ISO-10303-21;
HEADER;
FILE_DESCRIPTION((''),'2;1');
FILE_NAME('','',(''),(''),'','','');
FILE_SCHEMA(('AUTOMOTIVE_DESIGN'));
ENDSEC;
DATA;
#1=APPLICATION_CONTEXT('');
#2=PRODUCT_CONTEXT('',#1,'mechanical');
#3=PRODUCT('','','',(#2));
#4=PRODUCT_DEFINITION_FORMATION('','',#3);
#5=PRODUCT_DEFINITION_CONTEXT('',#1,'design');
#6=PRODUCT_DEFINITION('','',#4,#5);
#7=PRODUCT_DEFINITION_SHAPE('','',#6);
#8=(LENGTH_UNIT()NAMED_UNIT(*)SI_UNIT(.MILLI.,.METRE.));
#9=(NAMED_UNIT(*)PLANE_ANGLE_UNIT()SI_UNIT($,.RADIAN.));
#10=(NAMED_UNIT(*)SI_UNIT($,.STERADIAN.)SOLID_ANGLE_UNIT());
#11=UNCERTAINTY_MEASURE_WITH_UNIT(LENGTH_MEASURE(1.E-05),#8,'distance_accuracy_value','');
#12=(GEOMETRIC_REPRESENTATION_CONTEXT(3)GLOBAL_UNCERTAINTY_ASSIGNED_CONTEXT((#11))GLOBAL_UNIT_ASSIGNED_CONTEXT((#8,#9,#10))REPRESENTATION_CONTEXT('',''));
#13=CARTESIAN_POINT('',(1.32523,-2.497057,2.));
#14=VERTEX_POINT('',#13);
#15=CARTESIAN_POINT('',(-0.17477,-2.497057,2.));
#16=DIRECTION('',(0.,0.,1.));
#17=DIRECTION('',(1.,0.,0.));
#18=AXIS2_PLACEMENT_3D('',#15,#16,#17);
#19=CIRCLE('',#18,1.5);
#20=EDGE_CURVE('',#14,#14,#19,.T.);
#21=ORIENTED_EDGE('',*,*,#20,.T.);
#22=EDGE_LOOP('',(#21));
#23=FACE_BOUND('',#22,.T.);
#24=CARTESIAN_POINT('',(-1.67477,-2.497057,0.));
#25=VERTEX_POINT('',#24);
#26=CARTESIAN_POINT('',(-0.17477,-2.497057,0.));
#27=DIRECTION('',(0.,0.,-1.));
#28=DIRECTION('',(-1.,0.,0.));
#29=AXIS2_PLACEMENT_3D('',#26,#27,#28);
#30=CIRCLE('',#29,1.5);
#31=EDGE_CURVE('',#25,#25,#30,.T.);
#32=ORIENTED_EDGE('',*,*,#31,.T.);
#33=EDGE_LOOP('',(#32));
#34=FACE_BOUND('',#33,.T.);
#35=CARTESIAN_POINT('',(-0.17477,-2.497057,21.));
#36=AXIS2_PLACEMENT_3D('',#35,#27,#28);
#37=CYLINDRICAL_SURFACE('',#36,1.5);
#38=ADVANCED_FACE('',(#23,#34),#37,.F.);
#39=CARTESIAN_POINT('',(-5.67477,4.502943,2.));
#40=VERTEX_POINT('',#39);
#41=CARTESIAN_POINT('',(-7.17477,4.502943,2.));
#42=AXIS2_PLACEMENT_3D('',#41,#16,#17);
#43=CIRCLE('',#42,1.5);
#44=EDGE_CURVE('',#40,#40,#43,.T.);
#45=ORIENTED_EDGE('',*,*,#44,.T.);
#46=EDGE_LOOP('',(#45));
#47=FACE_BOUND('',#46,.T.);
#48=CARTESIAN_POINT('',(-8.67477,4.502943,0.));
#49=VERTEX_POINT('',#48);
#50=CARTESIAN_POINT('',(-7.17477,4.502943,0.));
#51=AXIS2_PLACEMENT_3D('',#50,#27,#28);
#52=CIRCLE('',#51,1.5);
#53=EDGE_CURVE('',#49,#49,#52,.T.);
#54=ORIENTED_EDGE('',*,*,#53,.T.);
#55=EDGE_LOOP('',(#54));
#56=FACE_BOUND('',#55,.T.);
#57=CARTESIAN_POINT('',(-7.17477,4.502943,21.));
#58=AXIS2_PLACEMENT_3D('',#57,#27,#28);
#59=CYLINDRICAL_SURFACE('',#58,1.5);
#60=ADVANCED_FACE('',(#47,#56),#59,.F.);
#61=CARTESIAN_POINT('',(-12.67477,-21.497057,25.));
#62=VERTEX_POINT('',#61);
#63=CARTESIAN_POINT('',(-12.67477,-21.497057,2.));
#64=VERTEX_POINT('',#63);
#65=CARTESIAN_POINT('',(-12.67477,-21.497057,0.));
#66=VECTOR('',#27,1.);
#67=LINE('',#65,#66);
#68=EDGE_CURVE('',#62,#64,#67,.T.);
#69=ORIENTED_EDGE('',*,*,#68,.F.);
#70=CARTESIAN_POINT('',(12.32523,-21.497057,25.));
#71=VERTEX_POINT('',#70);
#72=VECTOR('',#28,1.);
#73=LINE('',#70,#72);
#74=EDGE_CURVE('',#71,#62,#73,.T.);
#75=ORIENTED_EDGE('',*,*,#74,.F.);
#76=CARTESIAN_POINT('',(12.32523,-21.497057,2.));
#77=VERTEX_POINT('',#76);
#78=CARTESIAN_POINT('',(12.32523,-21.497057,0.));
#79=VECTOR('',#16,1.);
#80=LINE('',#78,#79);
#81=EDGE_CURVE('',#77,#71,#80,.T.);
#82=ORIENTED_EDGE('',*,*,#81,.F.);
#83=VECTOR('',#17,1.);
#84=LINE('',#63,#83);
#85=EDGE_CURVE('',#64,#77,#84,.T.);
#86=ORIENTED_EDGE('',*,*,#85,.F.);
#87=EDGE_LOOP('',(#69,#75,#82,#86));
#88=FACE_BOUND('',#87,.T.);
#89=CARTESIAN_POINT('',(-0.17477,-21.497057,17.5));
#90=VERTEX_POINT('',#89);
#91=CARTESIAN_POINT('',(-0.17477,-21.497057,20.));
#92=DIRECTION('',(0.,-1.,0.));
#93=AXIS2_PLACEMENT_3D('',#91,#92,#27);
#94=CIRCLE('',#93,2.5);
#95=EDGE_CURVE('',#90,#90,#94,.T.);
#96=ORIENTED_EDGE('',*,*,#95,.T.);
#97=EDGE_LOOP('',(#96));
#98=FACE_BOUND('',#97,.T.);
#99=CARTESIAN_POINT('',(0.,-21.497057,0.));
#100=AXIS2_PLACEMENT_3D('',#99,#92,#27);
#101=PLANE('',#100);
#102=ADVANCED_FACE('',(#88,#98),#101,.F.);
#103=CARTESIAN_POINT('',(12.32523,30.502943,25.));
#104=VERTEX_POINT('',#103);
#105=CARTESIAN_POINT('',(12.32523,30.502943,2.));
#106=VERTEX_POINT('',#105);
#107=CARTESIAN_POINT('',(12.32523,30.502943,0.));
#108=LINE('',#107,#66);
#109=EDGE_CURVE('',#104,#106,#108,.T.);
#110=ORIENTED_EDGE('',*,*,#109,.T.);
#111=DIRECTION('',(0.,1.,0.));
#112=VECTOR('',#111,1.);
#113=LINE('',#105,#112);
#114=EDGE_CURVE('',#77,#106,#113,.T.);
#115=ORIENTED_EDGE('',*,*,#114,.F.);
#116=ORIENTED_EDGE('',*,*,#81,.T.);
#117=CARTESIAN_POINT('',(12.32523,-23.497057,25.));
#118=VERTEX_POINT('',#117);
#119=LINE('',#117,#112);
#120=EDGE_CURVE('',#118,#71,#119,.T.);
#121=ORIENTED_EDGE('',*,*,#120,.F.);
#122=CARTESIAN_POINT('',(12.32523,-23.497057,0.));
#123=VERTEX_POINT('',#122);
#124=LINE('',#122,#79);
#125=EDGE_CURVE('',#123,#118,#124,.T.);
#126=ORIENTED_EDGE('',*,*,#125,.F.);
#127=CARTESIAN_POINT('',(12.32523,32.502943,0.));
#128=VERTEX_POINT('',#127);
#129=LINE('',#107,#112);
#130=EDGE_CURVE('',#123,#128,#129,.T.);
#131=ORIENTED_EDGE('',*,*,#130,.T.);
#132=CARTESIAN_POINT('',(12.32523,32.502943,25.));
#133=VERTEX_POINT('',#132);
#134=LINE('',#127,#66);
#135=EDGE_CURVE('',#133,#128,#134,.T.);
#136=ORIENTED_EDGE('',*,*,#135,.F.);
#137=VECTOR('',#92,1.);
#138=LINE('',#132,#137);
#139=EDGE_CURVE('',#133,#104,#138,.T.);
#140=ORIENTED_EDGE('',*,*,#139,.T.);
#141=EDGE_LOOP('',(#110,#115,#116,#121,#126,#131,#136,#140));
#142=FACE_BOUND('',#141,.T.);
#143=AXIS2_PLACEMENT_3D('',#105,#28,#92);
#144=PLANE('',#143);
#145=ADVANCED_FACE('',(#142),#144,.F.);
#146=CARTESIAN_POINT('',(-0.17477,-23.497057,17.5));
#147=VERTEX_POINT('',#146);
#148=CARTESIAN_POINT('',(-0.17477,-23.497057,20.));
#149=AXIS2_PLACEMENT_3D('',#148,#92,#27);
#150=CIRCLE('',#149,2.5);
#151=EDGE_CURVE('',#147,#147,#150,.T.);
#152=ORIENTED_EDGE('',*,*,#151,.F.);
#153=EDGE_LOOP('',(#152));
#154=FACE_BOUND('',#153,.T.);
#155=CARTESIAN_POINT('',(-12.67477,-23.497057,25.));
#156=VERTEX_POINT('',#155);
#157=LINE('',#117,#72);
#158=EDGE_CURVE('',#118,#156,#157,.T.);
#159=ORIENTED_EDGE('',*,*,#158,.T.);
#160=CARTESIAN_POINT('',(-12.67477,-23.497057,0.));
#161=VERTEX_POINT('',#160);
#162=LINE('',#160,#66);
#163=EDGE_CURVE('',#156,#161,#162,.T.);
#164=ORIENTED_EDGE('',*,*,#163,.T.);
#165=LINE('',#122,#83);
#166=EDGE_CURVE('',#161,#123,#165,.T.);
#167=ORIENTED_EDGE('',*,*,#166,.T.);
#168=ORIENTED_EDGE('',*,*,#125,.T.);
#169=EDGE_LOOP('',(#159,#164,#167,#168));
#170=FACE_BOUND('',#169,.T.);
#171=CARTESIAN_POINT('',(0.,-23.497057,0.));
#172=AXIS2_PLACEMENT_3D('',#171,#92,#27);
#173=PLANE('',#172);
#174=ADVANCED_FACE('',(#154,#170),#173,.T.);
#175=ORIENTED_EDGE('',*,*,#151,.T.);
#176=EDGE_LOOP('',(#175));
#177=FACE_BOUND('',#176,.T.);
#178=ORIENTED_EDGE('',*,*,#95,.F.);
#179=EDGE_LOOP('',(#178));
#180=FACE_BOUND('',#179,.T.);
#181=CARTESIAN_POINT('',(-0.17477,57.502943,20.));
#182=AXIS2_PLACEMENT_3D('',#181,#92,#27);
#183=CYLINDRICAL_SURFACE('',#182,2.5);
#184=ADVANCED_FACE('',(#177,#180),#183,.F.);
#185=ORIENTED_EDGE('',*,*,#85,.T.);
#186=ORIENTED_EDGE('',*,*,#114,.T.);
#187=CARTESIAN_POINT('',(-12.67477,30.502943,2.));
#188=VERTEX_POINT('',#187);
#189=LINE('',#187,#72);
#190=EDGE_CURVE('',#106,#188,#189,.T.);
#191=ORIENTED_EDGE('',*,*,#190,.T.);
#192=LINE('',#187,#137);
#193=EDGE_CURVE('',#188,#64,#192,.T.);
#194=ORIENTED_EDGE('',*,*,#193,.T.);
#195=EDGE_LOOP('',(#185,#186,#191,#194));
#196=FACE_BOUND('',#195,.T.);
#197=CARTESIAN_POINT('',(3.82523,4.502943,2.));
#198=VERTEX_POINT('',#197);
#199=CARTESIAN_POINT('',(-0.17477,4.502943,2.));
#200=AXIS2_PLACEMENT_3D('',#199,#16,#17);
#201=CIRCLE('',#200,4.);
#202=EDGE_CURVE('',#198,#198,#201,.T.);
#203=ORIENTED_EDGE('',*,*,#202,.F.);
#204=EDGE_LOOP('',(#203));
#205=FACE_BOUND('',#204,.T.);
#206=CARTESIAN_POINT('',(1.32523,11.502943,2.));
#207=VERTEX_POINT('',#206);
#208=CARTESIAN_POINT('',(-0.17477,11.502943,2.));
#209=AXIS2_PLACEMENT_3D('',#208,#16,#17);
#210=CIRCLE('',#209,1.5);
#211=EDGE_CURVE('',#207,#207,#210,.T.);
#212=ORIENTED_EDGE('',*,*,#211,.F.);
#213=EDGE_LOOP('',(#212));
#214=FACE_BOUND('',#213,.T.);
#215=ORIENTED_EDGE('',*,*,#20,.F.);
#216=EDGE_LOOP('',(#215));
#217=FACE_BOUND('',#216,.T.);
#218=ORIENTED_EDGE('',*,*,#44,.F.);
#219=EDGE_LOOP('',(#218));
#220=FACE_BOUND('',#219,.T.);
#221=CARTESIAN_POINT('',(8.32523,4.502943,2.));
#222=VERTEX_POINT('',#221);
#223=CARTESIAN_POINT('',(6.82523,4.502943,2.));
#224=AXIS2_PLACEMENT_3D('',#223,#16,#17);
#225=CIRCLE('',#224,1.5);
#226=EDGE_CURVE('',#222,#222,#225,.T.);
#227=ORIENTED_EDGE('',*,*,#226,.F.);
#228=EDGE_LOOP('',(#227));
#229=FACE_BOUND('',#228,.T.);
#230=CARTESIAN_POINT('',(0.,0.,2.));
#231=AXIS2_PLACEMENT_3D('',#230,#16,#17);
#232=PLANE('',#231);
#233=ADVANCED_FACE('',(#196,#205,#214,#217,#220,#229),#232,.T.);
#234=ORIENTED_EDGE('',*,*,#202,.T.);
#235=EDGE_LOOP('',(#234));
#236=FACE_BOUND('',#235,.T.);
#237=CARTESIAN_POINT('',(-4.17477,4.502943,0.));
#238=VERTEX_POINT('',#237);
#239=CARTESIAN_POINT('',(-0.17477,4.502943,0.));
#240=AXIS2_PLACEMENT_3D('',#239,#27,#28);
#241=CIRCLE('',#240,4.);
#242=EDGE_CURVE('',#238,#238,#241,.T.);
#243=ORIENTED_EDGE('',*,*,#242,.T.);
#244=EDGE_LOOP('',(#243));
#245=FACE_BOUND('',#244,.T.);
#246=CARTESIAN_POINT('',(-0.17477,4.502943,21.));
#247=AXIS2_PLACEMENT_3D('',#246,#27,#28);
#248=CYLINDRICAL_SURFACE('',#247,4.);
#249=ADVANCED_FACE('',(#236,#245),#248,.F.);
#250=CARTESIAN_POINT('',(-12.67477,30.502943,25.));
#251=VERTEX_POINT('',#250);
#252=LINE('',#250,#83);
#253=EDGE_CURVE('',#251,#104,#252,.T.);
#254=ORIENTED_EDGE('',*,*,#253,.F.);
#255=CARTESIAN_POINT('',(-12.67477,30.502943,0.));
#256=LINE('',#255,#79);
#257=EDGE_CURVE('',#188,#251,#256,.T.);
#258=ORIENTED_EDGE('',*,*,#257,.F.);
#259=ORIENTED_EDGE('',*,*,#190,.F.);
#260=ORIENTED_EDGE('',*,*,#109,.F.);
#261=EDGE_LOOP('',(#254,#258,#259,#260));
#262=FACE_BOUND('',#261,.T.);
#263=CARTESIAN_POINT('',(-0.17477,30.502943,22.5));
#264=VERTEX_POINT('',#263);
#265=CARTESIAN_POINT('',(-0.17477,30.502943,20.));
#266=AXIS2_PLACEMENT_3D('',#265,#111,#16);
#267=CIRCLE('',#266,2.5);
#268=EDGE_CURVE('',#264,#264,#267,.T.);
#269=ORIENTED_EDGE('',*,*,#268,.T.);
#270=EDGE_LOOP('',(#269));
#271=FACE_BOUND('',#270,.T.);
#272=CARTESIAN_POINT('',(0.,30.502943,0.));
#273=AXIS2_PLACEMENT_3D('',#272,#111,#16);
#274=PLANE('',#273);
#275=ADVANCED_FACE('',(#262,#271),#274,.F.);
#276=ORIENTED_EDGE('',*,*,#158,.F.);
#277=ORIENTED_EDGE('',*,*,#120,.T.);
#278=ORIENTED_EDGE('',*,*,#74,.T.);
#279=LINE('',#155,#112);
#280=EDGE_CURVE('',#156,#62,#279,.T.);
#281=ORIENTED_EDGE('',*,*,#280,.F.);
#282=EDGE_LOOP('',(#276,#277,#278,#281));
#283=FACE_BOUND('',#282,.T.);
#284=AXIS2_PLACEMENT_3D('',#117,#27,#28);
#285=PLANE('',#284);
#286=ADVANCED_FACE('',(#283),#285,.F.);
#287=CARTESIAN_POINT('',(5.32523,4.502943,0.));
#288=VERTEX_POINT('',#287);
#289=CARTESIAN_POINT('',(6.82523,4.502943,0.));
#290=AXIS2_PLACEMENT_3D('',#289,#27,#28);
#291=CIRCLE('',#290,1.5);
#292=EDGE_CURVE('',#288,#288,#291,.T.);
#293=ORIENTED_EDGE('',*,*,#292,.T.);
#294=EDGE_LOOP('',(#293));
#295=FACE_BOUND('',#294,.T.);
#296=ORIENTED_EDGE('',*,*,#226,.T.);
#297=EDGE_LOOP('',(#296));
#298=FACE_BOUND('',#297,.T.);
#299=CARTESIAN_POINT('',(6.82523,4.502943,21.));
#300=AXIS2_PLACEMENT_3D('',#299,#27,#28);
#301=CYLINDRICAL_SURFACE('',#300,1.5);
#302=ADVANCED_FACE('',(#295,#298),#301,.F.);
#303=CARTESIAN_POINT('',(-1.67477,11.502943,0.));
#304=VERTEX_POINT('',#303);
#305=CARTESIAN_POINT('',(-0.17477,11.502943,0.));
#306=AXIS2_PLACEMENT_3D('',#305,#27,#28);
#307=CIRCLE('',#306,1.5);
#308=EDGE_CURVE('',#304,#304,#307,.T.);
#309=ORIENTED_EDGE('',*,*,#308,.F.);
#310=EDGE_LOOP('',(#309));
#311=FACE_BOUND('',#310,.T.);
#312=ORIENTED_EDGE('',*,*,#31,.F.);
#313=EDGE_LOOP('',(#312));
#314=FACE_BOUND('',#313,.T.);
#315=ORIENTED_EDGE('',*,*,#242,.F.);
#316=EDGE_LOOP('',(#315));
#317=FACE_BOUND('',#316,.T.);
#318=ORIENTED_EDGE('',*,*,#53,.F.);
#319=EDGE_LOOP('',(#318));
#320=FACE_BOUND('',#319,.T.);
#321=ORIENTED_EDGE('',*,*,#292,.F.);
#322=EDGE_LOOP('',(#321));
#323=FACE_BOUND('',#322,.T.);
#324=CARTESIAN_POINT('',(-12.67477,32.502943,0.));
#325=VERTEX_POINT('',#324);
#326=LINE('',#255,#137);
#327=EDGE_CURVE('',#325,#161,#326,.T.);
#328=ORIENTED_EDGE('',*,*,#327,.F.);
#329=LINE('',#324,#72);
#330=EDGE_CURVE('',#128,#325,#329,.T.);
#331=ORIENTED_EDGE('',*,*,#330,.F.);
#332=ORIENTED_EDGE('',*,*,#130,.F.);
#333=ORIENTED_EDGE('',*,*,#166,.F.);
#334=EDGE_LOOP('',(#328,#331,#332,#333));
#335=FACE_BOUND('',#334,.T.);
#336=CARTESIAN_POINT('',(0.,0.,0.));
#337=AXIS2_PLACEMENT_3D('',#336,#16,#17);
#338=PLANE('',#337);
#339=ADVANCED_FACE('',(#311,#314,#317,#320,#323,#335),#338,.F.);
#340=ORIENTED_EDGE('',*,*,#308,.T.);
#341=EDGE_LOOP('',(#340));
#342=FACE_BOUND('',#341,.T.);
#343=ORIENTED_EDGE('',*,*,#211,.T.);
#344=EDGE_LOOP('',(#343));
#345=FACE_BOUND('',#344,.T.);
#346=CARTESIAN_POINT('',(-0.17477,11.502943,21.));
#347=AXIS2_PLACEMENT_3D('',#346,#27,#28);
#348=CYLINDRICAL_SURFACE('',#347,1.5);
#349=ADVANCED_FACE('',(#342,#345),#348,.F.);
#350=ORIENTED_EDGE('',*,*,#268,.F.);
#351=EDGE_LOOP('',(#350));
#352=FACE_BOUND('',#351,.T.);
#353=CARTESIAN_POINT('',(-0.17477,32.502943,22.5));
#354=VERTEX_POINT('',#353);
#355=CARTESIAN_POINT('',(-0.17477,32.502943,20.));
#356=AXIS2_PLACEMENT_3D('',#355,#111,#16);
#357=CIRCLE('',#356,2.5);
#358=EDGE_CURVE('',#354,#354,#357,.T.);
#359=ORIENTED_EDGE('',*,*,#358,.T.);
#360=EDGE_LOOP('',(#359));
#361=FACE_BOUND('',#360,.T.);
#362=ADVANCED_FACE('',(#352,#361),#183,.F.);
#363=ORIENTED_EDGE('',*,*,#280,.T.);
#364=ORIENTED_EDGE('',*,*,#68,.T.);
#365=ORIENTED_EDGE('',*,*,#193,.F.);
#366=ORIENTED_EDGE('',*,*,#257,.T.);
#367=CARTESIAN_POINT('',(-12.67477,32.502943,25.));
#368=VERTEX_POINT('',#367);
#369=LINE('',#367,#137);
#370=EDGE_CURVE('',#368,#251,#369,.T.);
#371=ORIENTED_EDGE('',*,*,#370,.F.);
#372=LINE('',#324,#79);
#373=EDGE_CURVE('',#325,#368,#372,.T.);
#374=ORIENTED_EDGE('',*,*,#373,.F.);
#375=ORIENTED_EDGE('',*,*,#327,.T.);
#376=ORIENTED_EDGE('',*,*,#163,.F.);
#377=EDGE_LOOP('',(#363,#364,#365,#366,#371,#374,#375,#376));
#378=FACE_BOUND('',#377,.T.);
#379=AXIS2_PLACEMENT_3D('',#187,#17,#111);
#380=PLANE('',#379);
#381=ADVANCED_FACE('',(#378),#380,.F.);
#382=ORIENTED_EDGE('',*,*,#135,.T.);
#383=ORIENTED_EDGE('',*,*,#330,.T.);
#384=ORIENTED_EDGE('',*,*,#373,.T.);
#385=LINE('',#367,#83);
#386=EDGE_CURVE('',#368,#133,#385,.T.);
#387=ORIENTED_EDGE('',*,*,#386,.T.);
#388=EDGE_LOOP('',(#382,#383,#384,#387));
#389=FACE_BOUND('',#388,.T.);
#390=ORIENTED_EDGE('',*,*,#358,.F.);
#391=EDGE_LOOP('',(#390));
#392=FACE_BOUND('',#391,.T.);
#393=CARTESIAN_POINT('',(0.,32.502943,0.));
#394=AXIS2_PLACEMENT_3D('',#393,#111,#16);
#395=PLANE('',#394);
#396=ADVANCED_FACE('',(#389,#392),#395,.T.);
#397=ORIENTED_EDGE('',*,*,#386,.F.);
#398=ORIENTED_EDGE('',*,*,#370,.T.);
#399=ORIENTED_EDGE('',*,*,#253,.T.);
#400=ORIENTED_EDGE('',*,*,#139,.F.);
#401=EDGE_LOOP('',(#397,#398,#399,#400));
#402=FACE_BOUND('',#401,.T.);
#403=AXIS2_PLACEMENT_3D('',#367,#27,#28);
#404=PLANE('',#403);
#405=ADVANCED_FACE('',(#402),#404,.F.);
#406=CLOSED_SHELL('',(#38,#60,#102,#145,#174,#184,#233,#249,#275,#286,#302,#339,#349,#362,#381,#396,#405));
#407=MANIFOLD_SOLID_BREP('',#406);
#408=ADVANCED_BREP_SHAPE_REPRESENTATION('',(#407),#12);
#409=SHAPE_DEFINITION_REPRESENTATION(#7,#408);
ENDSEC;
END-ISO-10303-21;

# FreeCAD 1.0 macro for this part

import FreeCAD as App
import Part
import Sketcher
Q = App.Units.Quantity


def add_polygon(sketch, points):
    """Adds a closed chain of lines whose ends are joined by coincident constraints."""
    first, n = sketch.GeometryCount, len(points)
    for a, b in zip(points, points[1:] + points[:1]):
        sketch.addGeometry(Part.LineSegment(App.Vector(*a, 0), App.Vector(*b, 0)), False)
    for i in range(n):
        sketch.addConstraint(Sketcher.Constraint("Coincident", first + i, 2, first + (i + 1) % n, 1))

doc = App.newDocument("Part")
body = doc.addObject("PartDesign::Body", "Body")

# Sketch on XY plane
sketch1 = body.newObject("Sketcher::SketchObject", "Sketch")
sketch1.AttachmentSupport = (doc.getObject("XY_Plane"), [""])
sketch1.MapMode = "FlatFace"
add_polygon(sketch1, [(-13, 31), (-13, -21), (12, -21), (12, 31)])  # lines 0-3
sketch1.addConstraint(Sketcher.Constraint("Vertical", 0))
sketch1.addConstraint(Sketcher.Constraint("Horizontal", 1))
sketch1.addConstraint(Sketcher.Constraint("Vertical", 2))
sketch1.addConstraint(Sketcher.Constraint("Horizontal", 3))
sketch1.addConstraint(Sketcher.Constraint("DistanceX", 1, 1, 1, 2, Q("25 mm")))
sketch1.addConstraint(Sketcher.Constraint("DistanceY", 0, 2, 0, 1, Q("52 mm")))
sketch1.addConstraint(Sketcher.Constraint("DistanceX", 0, 2, -1, 1, Q("12.67477 mm")))
sketch1.addConstraint(Sketcher.Constraint("DistanceY", 0, 2, -1, 1, Q("21.497057 mm")))
pad1 = body.newObject("PartDesign::Pad", "Pad")
pad1.Profile = sketch1
pad1.Length = 2

# Sketch on XZ plane
sketch2 = body.newObject("Sketcher::SketchObject", "Sketch001")
sketch2.AttachmentSupport = (doc.getObject("XZ_Plane"), [""])
sketch2.MapMode = "FlatFace"
sketch2.AttachmentOffset = App.Placement(App.Vector(0, 0, -30.502943), App.Rotation())
add_polygon(sketch2, [(-13, 0), (-13, 25), (12, 25), (12, 0)])  # lines 0-3
sketch2.addConstraint(Sketcher.Constraint("Vertical", 0))
sketch2.addConstraint(Sketcher.Constraint("Horizontal", 1))
sketch2.addConstraint(Sketcher.Constraint("Vertical", 2))
sketch2.addConstraint(Sketcher.Constraint("Horizontal", 3))
sketch2.addConstraint(Sketcher.Constraint("PointOnObject", 2, 2, -1))
sketch2.addConstraint(Sketcher.Constraint("Equal", 3, 0))
sketch2.addConstraint(Sketcher.Constraint("DistanceX", 1, 1, 1, 2, Q("25 mm")))
sketch2.addConstraint(Sketcher.Constraint("DistanceX", 0, 2, -1, 1, Q("12.67477 mm")))
pad2 = body.newObject("PartDesign::Pad", "Pad001")
pad2.Profile = sketch2
pad2.Length = 2
pad2.Reversed = True

# Sketch on XZ plane
sketch3 = body.newObject("Sketcher::SketchObject", "Sketch002")
sketch3.AttachmentSupport = (doc.getObject("XZ_Plane"), [""])
sketch3.MapMode = "FlatFace"
sketch3.AttachmentOffset = App.Placement(App.Vector(0, 0, 21.497057), App.Rotation())
add_polygon(sketch3, [(12, 0), (12, 25), (-13, 25), (-13, 0)])  # lines 0-3
sketch3.addConstraint(Sketcher.Constraint("Vertical", 0))
sketch3.addConstraint(Sketcher.Constraint("Horizontal", 1))
sketch3.addConstraint(Sketcher.Constraint("Vertical", 2))
sketch3.addConstraint(Sketcher.Constraint("Horizontal", 3))
sketch3.addConstraint(Sketcher.Constraint("PointOnObject", 2, 2, -1))
sketch3.addConstraint(Sketcher.Constraint("Equal", 3, 0))
sketch3.addConstraint(Sketcher.Constraint("DistanceX", 1, 2, 1, 1, Q("25 mm")))
sketch3.addConstraint(Sketcher.Constraint("DistanceX", -1, 1, 0, 2, Q("12.32523 mm")))
pad3 = body.newObject("PartDesign::Pad", "Pad002")
pad3.Profile = sketch3
pad3.Length = 2

# Sketch on XY plane
sketch4 = body.newObject("Sketcher::SketchObject", "Sketch003")
sketch4.AttachmentSupport = (doc.getObject("XY_Plane"), [""])
sketch4.MapMode = "FlatFace"
sketch4.addGeometry(Part.Circle(App.Vector(-0.2, 4.5, 0), App.Vector(0, 0, 1), 4), False)
sketch4.addConstraint(Sketcher.Constraint("Diameter", 0, Q("8 mm")))
sketch4.addConstraint(Sketcher.Constraint("DistanceX", 0, 3, -1, 1, Q("0.17477 mm")))
sketch4.addConstraint(Sketcher.Constraint("DistanceY", -1, 1, 0, 3, Q("4.502943 mm")))
pocket1 = body.newObject("PartDesign::Pocket", "Pocket")
pocket1.Profile = sketch4
pocket1.Length = 21
pocket1.Reversed = True

# Sketch on XY plane
sketch5 = body.newObject("Sketcher::SketchObject", "Sketch004")
sketch5.AttachmentSupport = (doc.getObject("XY_Plane"), [""])
sketch5.MapMode = "FlatFace"
sketch5.addGeometry(Part.Circle(App.Vector(-7.2, 4.5, 0), App.Vector(0, 0, 1), 1.5), False)
sketch5.addGeometry(Part.Circle(App.Vector(-0.2, -2.5, 0), App.Vector(0, 0, 1), 1.5), False)
sketch5.addGeometry(Part.Circle(App.Vector(6.8, 4.5, 0), App.Vector(0, 0, 1), 1.5), False)
sketch5.addGeometry(Part.Circle(App.Vector(-0.2, 11.5, 0), App.Vector(0, 0, 1), 1.5), False)
sketch5.addConstraint(Sketcher.Constraint("Equal", 0, 1))
sketch5.addConstraint(Sketcher.Constraint("Equal", 1, 2))
sketch5.addConstraint(Sketcher.Constraint("Equal", 2, 3))
sketch5.addConstraint(Sketcher.Constraint("Horizontal", 0, 3, 2, 3))
sketch5.addConstraint(Sketcher.Constraint("Vertical", 1, 3, 3, 3))
sketch5.addConstraint(Sketcher.Constraint("Diameter", 0, Q("3 mm")))
sketch5.addConstraint(Sketcher.Constraint("DistanceX", 0, 3, 1, 3, Q("7 mm")))
sketch5.addConstraint(Sketcher.Constraint("DistanceY", 1, 3, 0, 3, Q("7 mm")))
sketch5.addConstraint(Sketcher.Constraint("DistanceX", 1, 3, 2, 3, Q("7 mm")))
sketch5.addConstraint(Sketcher.Constraint("DistanceY", 0, 3, 3, 3, Q("7 mm")))
sketch5.addConstraint(Sketcher.Constraint("DistanceX", 0, 3, -1, 1, Q("7.17477 mm")))
sketch5.addConstraint(Sketcher.Constraint("DistanceY", -1, 1, 0, 3, Q("4.502943 mm")))
pocket2 = body.newObject("PartDesign::Pocket", "Pocket001")
pocket2.Profile = sketch5
pocket2.Length = 21
pocket2.Reversed = True

# Sketch on XZ plane
sketch6 = body.newObject("Sketcher::SketchObject", "Sketch005")
sketch6.AttachmentSupport = (doc.getObject("XZ_Plane"), [""])
sketch6.MapMode = "FlatFace"
sketch6.AttachmentOffset = App.Placement(App.Vector(0, 0, 23.497057), App.Rotation())
sketch6.addGeometry(Part.Circle(App.Vector(-0.2, 20, 0), App.Vector(0, 0, 1), 2.5), False)
sketch6.addConstraint(Sketcher.Constraint("Diameter", 0, Q("5 mm")))
sketch6.addConstraint(Sketcher.Constraint("DistanceY", -1, 1, 0, 3, Q("20 mm")))
sketch6.addConstraint(Sketcher.Constraint("DistanceX", 0, 3, -1, 1, Q("0.17477 mm")))
pocket3 = body.newObject("PartDesign::Pocket", "Pocket002")
pocket3.Profile = sketch6
pocket3.Length = 81

doc.recompute()
